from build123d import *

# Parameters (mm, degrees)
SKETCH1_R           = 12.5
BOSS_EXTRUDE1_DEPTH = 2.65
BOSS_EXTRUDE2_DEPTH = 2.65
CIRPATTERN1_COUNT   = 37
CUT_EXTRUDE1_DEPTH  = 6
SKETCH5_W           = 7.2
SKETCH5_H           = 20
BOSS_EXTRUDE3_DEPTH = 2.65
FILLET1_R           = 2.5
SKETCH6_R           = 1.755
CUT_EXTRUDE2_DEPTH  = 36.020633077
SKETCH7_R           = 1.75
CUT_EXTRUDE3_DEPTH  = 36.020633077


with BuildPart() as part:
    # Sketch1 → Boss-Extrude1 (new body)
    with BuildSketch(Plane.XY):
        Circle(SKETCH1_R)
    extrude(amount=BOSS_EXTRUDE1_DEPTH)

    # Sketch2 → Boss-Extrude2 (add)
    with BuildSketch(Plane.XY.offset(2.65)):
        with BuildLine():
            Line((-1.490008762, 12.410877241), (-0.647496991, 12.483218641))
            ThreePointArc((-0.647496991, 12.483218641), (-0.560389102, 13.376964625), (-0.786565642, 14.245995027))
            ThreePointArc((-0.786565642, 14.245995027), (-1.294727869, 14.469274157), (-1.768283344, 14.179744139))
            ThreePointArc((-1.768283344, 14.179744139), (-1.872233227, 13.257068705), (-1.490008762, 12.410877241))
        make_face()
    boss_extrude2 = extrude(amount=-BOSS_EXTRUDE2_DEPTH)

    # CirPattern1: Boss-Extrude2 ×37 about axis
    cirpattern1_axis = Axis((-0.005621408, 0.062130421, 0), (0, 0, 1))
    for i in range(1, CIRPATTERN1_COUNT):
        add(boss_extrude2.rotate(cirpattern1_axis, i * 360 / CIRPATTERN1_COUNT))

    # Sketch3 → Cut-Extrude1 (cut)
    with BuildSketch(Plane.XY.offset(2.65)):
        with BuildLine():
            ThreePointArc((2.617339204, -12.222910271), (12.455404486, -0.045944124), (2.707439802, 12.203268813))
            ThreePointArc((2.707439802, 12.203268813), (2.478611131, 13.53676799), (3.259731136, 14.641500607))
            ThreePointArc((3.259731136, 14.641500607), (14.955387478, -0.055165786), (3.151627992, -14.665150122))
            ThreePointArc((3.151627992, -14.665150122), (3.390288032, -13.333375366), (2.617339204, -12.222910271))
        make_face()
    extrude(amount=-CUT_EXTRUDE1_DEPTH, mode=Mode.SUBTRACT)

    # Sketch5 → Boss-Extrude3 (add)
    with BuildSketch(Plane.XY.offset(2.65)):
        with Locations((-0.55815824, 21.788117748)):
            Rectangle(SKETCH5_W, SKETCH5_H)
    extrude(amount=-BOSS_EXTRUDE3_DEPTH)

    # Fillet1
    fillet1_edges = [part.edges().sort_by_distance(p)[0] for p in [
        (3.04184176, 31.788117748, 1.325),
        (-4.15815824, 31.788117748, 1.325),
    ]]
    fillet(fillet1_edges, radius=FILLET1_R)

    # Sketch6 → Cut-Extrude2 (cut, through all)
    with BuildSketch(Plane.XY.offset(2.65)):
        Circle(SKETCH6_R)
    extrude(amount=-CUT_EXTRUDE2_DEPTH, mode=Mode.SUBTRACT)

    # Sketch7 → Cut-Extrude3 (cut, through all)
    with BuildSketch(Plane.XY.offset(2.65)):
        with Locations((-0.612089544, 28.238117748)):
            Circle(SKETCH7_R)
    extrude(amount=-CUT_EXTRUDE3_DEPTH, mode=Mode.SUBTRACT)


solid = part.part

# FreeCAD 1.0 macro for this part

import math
import FreeCAD as App
import Part
import Sketcher
from FreeCAD import Vector
Q = App.Units.Quantity


def edges_at(feature, points):
    """Names of the edges that pass closest to the given points."""
    edges = feature.Shape.Edges
    near = lambda p: min(range(len(edges)), key=lambda i: edges[i].distToShape(Part.Vertex(*p))[0])
    return sorted({f"Edge{near(p) + 1}" for p in points})

doc = App.newDocument("Part")
body = doc.addObject("PartDesign::Body", "Body")

sketch1 = body.newObject("Sketcher::SketchObject", "Sketch")
sketch1.AttachmentSupport = (doc.getObject("XY_Plane"), [""])
sketch1.MapMode = "FlatFace"
sketch1.addGeometry(Part.Circle(Vector(0, 0, 0), Vector(0, 0, 1), 12.5), False)
sketch1.addConstraint(Sketcher.Constraint("Coincident", 0, 3, -1, 1))
sketch1.addConstraint(Sketcher.Constraint("Diameter", 0, Q("25 mm")))
pad1 = body.newObject("PartDesign::Pad", "Pad")
pad1.Profile = sketch1
pad1.Length = 2.65

sketch2 = body.newObject("Sketcher::SketchObject", "Sketch001")
sketch2.AttachmentSupport = (doc.getObject("XY_Plane"), [""])
sketch2.MapMode = "FlatFace"
sketch2.AttachmentOffset = App.Placement(Vector(0, 0, 2.65), App.Rotation())
sketch2.addGeometry(Part.LineSegment(Vector(-1.490009, 12.410877, 0), Vector(-0.647497, 12.483219, 0)), False)
sketch2.addGeometry(Part.ArcOfCircle(Part.Circle(Vector(-3.11839, 13.175159, 0), Vector(0, 0, 1), 2.565949), math.radians(-15.644192), math.radians(24.665844)), False)
sketch2.addGeometry(Part.ArcOfCircle(Part.Circle(Vector(-1.254369, 13.871224, 0), Vector(0, 0, 1), 0.599411), math.radians(38.699284), math.radians(149.022181)), False)
sketch2.addGeometry(Part.ArcOfCircle(Part.Circle(Vector(-0.141755, 13.529304, 0), Vector(0, 0, 1), 1.751761), math.radians(158.203783), math.radians(219.676981)), False)
sketch2.addConstraint(Sketcher.Constraint("Coincident", 0, 2, 1, 1))
sketch2.addConstraint(Sketcher.Constraint("Coincident", 1, 2, 2, 1))
sketch2.addConstraint(Sketcher.Constraint("Coincident", 2, 2, 3, 1))
sketch2.addConstraint(Sketcher.Constraint("Coincident", 3, 2, 0, 1))
sketch2.addConstraint(Sketcher.Constraint("Radius", 1, Q("2.565949 mm")))
sketch2.addConstraint(Sketcher.Constraint("Radius", 2, Q("0.599411 mm")))
sketch2.addConstraint(Sketcher.Constraint("Radius", 3, Q("1.751761 mm")))
sketch2.addConstraint(Sketcher.Constraint("Distance", 0, Q("0.845612 mm")))
sketch2.addConstraint(Sketcher.Constraint("DistanceX", 1, 3, -1, 1, Q("3.11839 mm")))
sketch2.addConstraint(Sketcher.Constraint("DistanceY", -1, 1, 1, 3, Q("13.175159 mm")))
sketch2.addConstraint(Sketcher.Constraint("DistanceX", 2, 3, -1, 1, Q("1.254369 mm")))
sketch2.addConstraint(Sketcher.Constraint("DistanceY", -1, 1, 0, 2, Q("12.483219 mm")))
sketch2.addConstraint(Sketcher.Constraint("DistanceX", 3, 2, -1, 1, Q("1.490009 mm")))
sketch2.addConstraint(Sketcher.Constraint("DistanceY", 3, 3, 2, 3, Q("0.34192 mm")))
sketch2.addConstraint(Sketcher.Constraint("DistanceX", 0, 2, 3, 3, Q("0.505742 mm")))
pad2 = body.newObject("PartDesign::Pad", "Pad001")
pad2.Profile = sketch2
pad2.Length = 2.65
pad2.Reversed = True
doc.recompute()

datumline = body.newObject("PartDesign::Line", "DatumLine")
datumline.Placement = App.Placement(Vector(-0.005621, 0.06213, 0), App.Rotation(Vector(0, 0, 1), Vector(0, 0, 1)))
polarpattern = body.newObject("PartDesign::PolarPattern", "PolarPattern")
polarpattern.Originals = [pad2]
polarpattern.Axis = (datumline, [""])
polarpattern.Angle = 360
polarpattern.Occurrences = 37
body.Tip = polarpattern

sketch3 = body.newObject("Sketcher::SketchObject", "Sketch002")
sketch3.AttachmentSupport = (doc.getObject("XY_Plane"), [""])
sketch3.MapMode = "FlatFace"
sketch3.AttachmentOffset = App.Placement(Vector(0, 0, 2.65), App.Rotation())
sketch3.addGeometry(Part.ArcOfCircle(Part.Circle(Vector(-0.056713, 0.000209, 0), Vector(0, 0, 1), 12.512202), math.radians(-77.65982), math.radians(77.237129)), False)
sketch3.addGeometry(Part.ArcOfCircle(Part.Circle(Vector(1.663364, -13.711175, 0), Vector(0, 0, 1), 1.767767), math.radians(-32.65982), math.radians(57.34018)), False)
sketch3.addGeometry(Part.ArcOfCircle(Part.Circle(Vector(-0.056713, 0.000209, 0), Vector(0, 0, 1), 15.012202), math.radians(-77.65982), math.radians(77.237129)), False)
sketch3.addGeometry(Part.ArcOfCircle(Part.Circle(Vector(4.202701, 13.146239, 0), Vector(0, 0, 1), 1.767767), math.radians(122.237129), math.radians(212.237129)), False)
sketch3.addConstraint(Sketcher.Constraint("Coincident", 0, 1, 1, 2))
sketch3.addConstraint(Sketcher.Constraint("Coincident", 1, 1, 2, 1))
sketch3.addConstraint(Sketcher.Constraint("Coincident", 2, 2, 3, 1))
sketch3.addConstraint(Sketcher.Constraint("Coincident", 3, 2, 0, 2))
sketch3.addConstraint(Sketcher.Constraint("Coincident", 2, 3, 0, 3))
sketch3.addConstraint(Sketcher.Constraint("Equal", 1, 3))
sketch3.addConstraint(Sketcher.Constraint("Radius", 0, Q("12.512202 mm")))
sketch3.addConstraint(Sketcher.Constraint("Radius", 1, Q("1.767767 mm")))
sketch3.addConstraint(Sketcher.Constraint("Radius", 2, Q("15.012202 mm")))
sketch3.addConstraint(Sketcher.Constraint("DistanceX", -1, 1, 3, 3, Q("4.202701 mm")))
sketch3.addConstraint(Sketcher.Constraint("DistanceY", -1, 1, 2, 2, Q("14.641501 mm")))
sketch3.addConstraint(Sketcher.Constraint("DistanceX", 0, 1, 3, 2, Q("0.090101 mm")))
sketch3.addConstraint(Sketcher.Constraint("DistanceY", -1, 1, 0, 3, Q("0.000209 mm")))
sketch3.addConstraint(Sketcher.Constraint("DistanceY", -1, 1, 3, 3, Q("13.146239 mm")))
sketch3.addConstraint(Sketcher.Constraint("DistanceY", 1, 1, -1, 1, Q("14.66515 mm")))
pocket1 = body.newObject("PartDesign::Pocket", "Pocket")
pocket1.Profile = sketch3
pocket1.Length = 6

sketch4 = body.newObject("Sketcher::SketchObject", "Sketch003")
sketch4.AttachmentSupport = (doc.getObject("XY_Plane"), [""])
sketch4.MapMode = "FlatFace"
sketch4.AttachmentOffset = App.Placement(Vector(0, 0, 2.65), App.Rotation())
sketch4.addGeometry(Part.LineSegment(Vector(-4.158158, 31.788118, 0), Vector(-4.158158, 11.788118, 0)), False)
sketch4.addGeometry(Part.LineSegment(Vector(-4.158158, 11.788118, 0), Vector(3.041842, 11.788118, 0)), False)
sketch4.addGeometry(Part.LineSegment(Vector(3.041842, 11.788118, 0), Vector(3.041842, 31.788118, 0)), False)
sketch4.addGeometry(Part.LineSegment(Vector(3.041842, 31.788118, 0), Vector(-4.158158, 31.788118, 0)), False)
sketch4.addConstraint(Sketcher.Constraint("Coincident", 0, 2, 1, 1))
sketch4.addConstraint(Sketcher.Constraint("Coincident", 1, 2, 2, 1))
sketch4.addConstraint(Sketcher.Constraint("Coincident", 2, 2, 3, 1))
sketch4.addConstraint(Sketcher.Constraint("Coincident", 3, 2, 0, 1))
sketch4.addConstraint(Sketcher.Constraint("Vertical", 0))
sketch4.addConstraint(Sketcher.Constraint("Horizontal", 1))
sketch4.addConstraint(Sketcher.Constraint("Vertical", 2))
sketch4.addConstraint(Sketcher.Constraint("Horizontal", 3))
sketch4.addConstraint(Sketcher.Constraint("DistanceY", 0, 2, 0, 1, Q("20 mm")))
sketch4.addConstraint(Sketcher.Constraint("DistanceX", 1, 1, 1, 2, Q("7.2 mm")))
sketch4.addConstraint(Sketcher.Constraint("DistanceX", 0, 2, -1, 1, Q("4.158158 mm")))
sketch4.addConstraint(Sketcher.Constraint("DistanceY", -1, 1, 0, 2, Q("11.788118 mm")))
pad3 = body.newObject("PartDesign::Pad", "Pad002")
pad3.Profile = sketch4
pad3.Length = 2.65
pad3.Reversed = True
doc.recompute()

fillet = body.newObject("PartDesign::Fillet", "Fillet")
fillet.Base = (pad3, edges_at(pad3, [(3.042, 31.788, 1.325), (-4.158, 31.788, 1.325)]))
fillet.Radius = 2.5

sketch5 = body.newObject("Sketcher::SketchObject", "Sketch004")
sketch5.AttachmentSupport = (doc.getObject("XY_Plane"), [""])
sketch5.MapMode = "FlatFace"
sketch5.AttachmentOffset = App.Placement(Vector(0, 0, 2.65), App.Rotation())
sketch5.addGeometry(Part.Circle(Vector(0, 0, 0), Vector(0, 0, 1), 1.755), False)
sketch5.addConstraint(Sketcher.Constraint("Coincident", 0, 3, -1, 1))
sketch5.addConstraint(Sketcher.Constraint("Diameter", 0, Q("3.51 mm")))
pocket2 = body.newObject("PartDesign::Pocket", "Pocket001")
pocket2.Profile = sketch5
pocket2.Type = "ThroughAll"

sketch6 = body.newObject("Sketcher::SketchObject", "Sketch005")
sketch6.AttachmentSupport = (doc.getObject("XY_Plane"), [""])
sketch6.MapMode = "FlatFace"
sketch6.AttachmentOffset = App.Placement(Vector(0, 0, 2.65), App.Rotation())
sketch6.addGeometry(Part.Circle(Vector(-0.61209, 28.238118, 0), Vector(0, 0, 1), 1.75), False)
sketch6.addConstraint(Sketcher.Constraint("Diameter", 0, Q("3.5 mm")))
sketch6.addConstraint(Sketcher.Constraint("DistanceX", 0, 3, -1, 1, Q("0.61209 mm")))
sketch6.addConstraint(Sketcher.Constraint("DistanceY", -1, 1, 0, 3, Q("28.238118 mm")))
pocket3 = body.newObject("PartDesign::Pocket", "Pocket002")
pocket3.Profile = sketch6
pocket3.Type = "ThroughAll"

doc.recompute()
